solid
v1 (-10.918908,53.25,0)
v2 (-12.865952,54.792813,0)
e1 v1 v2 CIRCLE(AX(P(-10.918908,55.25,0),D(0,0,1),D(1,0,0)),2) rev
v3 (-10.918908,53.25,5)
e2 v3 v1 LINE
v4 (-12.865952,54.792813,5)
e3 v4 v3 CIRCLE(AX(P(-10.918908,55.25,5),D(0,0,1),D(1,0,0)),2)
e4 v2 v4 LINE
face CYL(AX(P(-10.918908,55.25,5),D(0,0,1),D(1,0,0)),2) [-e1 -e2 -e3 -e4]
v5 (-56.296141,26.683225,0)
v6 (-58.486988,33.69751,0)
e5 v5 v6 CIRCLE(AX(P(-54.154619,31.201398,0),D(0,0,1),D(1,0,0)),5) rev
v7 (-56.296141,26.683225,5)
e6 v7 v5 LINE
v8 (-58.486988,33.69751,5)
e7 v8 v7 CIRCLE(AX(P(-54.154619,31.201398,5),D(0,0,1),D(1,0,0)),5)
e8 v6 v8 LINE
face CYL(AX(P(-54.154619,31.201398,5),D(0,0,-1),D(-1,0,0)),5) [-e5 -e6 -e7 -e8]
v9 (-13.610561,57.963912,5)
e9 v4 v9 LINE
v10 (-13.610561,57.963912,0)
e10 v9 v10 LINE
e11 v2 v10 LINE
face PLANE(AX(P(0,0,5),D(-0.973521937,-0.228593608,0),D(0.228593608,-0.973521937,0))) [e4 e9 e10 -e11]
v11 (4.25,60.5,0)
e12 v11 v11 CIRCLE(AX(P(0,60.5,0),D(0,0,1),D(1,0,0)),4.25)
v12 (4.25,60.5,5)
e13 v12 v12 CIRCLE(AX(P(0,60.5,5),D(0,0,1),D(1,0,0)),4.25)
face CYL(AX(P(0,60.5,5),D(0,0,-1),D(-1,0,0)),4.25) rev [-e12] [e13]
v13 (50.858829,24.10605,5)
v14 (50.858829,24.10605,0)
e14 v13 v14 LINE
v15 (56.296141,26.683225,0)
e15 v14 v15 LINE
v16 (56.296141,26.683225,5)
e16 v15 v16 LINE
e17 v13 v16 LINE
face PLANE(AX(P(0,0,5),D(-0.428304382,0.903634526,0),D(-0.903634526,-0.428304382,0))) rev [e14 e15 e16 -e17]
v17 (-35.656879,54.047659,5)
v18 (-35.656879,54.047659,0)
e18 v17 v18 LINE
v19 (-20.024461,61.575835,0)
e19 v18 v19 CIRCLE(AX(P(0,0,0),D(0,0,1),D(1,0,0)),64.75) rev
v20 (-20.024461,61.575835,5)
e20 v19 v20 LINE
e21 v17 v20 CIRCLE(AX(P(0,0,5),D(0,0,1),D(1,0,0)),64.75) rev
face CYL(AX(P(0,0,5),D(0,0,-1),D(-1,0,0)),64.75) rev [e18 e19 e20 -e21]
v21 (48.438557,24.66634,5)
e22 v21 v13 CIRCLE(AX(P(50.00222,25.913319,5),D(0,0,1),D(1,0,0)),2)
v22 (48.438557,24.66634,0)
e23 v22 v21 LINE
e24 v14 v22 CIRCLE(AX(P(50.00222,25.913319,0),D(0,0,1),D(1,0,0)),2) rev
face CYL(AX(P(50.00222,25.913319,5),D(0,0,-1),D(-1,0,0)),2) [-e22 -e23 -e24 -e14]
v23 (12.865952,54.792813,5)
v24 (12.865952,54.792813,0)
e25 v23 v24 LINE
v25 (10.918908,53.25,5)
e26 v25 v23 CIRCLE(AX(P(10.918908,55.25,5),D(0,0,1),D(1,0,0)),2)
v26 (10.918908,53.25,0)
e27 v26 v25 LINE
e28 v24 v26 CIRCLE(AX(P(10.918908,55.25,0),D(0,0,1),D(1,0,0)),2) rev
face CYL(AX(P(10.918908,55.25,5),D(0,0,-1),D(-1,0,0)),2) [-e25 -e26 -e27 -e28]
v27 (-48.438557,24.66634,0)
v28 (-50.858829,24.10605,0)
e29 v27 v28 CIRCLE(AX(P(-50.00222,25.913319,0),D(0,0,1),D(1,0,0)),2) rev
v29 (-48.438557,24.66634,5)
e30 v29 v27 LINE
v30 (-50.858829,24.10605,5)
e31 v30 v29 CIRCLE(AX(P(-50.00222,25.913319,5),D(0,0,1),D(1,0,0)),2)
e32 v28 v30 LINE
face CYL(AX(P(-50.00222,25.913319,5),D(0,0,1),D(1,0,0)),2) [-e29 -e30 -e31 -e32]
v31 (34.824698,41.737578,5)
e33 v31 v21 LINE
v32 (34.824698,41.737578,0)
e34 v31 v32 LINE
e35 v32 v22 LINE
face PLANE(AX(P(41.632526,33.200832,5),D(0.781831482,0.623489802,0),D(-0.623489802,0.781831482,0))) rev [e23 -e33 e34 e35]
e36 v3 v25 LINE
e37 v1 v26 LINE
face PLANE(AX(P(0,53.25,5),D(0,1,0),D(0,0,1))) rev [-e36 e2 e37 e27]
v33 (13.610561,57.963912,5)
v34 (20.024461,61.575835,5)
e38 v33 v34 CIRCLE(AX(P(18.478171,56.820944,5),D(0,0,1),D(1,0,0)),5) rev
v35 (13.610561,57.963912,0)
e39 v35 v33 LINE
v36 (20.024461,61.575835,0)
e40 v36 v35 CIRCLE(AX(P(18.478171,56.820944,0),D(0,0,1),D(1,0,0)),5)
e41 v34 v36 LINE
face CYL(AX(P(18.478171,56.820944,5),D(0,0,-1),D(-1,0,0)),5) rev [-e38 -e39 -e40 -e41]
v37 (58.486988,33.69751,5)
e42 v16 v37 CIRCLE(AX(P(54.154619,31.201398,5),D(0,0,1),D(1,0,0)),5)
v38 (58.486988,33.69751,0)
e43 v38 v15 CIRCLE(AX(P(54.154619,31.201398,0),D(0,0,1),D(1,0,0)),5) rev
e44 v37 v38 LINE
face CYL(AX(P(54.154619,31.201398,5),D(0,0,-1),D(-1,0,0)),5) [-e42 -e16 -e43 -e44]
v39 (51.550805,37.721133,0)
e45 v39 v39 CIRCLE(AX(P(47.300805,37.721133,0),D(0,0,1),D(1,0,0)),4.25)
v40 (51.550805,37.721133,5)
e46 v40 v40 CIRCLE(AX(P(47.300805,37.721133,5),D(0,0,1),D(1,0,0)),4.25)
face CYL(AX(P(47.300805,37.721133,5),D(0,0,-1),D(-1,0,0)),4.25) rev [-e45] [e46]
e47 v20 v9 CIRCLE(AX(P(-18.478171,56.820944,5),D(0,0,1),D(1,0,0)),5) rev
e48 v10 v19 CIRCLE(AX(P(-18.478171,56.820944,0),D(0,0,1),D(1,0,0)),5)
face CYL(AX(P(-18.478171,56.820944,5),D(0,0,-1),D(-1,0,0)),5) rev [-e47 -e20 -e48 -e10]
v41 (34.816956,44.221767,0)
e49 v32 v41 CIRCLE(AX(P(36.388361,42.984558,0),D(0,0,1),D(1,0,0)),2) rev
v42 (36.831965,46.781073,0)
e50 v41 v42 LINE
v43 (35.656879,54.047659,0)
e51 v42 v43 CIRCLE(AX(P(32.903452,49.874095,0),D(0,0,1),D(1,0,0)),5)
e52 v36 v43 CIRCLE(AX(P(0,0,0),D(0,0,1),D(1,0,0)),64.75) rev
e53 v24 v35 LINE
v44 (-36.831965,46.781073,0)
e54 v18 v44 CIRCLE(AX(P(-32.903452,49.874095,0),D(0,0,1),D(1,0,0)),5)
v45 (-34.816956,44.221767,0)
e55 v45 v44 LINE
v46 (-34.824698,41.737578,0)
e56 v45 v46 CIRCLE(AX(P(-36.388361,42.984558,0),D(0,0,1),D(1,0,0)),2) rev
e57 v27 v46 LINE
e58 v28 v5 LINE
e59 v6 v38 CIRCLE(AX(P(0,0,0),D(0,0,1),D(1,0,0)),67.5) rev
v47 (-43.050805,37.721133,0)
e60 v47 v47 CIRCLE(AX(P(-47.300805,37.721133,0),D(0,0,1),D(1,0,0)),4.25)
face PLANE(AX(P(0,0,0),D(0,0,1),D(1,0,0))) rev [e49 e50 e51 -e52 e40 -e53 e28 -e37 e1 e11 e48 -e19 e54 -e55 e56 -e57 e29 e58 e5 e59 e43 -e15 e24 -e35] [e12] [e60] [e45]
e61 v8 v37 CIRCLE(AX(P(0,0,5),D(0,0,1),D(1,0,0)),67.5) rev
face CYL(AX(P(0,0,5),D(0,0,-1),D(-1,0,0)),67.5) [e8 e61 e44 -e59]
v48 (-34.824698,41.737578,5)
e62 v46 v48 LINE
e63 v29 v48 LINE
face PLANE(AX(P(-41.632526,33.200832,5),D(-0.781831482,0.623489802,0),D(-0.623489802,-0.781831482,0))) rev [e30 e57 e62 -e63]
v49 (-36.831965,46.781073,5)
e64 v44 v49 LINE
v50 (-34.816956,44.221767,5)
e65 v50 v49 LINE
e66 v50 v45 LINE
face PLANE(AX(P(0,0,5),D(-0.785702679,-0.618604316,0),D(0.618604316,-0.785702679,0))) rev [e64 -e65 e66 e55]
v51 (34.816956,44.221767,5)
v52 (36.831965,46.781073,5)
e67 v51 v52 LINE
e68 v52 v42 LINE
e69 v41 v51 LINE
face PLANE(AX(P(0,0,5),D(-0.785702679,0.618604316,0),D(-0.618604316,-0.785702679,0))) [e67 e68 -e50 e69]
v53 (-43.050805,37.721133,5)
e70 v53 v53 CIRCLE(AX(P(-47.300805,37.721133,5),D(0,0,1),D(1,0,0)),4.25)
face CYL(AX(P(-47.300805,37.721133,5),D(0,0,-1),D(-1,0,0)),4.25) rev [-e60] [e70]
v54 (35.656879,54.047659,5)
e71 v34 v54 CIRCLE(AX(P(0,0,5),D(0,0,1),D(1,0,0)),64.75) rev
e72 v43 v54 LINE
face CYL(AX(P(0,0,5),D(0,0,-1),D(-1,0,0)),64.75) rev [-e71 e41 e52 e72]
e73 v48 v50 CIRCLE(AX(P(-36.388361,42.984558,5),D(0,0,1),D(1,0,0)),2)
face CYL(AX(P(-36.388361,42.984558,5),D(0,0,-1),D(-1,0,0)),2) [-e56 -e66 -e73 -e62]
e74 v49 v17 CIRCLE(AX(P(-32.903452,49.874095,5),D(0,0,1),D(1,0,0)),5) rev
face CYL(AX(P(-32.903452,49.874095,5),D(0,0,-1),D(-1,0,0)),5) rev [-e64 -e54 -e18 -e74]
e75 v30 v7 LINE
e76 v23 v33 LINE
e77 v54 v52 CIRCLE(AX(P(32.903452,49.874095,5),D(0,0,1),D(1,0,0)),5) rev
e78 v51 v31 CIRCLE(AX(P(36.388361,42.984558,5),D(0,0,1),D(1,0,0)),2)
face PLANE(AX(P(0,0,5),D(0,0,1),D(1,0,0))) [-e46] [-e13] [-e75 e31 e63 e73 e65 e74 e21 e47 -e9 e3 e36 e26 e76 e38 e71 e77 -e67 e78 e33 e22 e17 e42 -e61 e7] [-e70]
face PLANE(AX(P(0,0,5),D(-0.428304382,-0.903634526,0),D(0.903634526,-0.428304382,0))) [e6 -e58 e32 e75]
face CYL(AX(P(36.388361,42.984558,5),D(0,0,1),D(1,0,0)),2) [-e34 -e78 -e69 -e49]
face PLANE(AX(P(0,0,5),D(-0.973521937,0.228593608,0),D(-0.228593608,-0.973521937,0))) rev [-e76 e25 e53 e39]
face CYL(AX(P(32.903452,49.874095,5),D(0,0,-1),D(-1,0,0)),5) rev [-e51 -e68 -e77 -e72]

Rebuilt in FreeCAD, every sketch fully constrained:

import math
import FreeCAD as App
import Part
import Sketcher
Q = App.Units.Quantity


def edges_at(feature, points):
    """Names of the edges that pass closest to the given points."""
    edges = feature.Shape.Edges
    near = lambda p: min(range(len(edges)), key=lambda i: edges[i].distToShape(Part.Vertex(*p))[0])
    return sorted({f"Edge{near(p) + 1}" for p in points})

doc = App.newDocument("Part")
body = doc.addObject("PartDesign::Body", "Body")

# Sketch on XY plane
sketch1 = body.newObject("Sketcher::SketchObject", "Sketch")
sketch1.AttachmentSupport = (doc.getObject("XY_Plane"), [""])
sketch1.MapMode = "FlatFace"
sketch1.addGeometry([
    Part.LineSegment(App.Vector(-41.6, 33.2, 0), App.Vector(-33.8, 43, 0)),  # 0
    Part.LineSegment(App.Vector(-33.8, 43, 0), App.Vector(-40.1, 50.9, 0)),  # 1
    Part.ArcOfCircle(Part.Circle(App.Vector(0, 0, 0), App.Vector(0, 0, 1), 64.8), math.radians(103), math.radians(128)),  # 2
    Part.LineSegment(App.Vector(-14.8, 63, 0), App.Vector(-12.5, 53.2, 0)),  # 3
    Part.LineSegment(App.Vector(-12.5, 53.2, 0), App.Vector(12.5, 53.2, 0)),  # 4
    Part.LineSegment(App.Vector(12.5, 53.2, 0), App.Vector(14.8, 63, 0)),  # 5
    Part.ArcOfCircle(Part.Circle(App.Vector(0, 0, 0), App.Vector(0, 0, 1), 64.8), math.radians(52), math.radians(77)),  # 6
    Part.LineSegment(App.Vector(40.1, 50.9, 0), App.Vector(33.8, 43, 0)),  # 7
    Part.LineSegment(App.Vector(33.8, 43, 0), App.Vector(41.6, 33.2, 0)),  # 8
    Part.LineSegment(App.Vector(41.6, 33.2, 0), App.Vector(49.4, 23.4, 0)),  # 9
    Part.LineSegment(App.Vector(49.4, 23.4, 0), App.Vector(61, 28.9, 0)),  # 10
    Part.ArcOfCircle(Part.Circle(App.Vector(0, 0, 0), App.Vector(0, 0, 1), 67.5), math.radians(25), math.radians(52)),  # 11
    Part.ArcOfCircle(Part.Circle(App.Vector(0, 0, 0), App.Vector(0, 0, 1), 67.5), math.radians(52), math.radians(77)),  # 12
    Part.ArcOfCircle(Part.Circle(App.Vector(0, 0, 0), App.Vector(0, 0, 1), 67.5), math.radians(77), math.radians(103)),  # 13
    Part.ArcOfCircle(Part.Circle(App.Vector(0, 0, 0), App.Vector(0, 0, 1), 67.5), math.radians(103), math.radians(128)),  # 14
    Part.ArcOfCircle(Part.Circle(App.Vector(0, 0, 0), App.Vector(0, 0, 1), 67.5), math.radians(128), math.radians(155)),  # 15
    Part.LineSegment(App.Vector(-61, 28.9, 0), App.Vector(-49.4, 23.4, 0)),  # 16
    Part.LineSegment(App.Vector(-49.4, 23.4, 0), App.Vector(-41.6, 33.2, 0)),  # 17
    Part.Circle(App.Vector(-47.3, 37.7, 0), App.Vector(0, 0, 1), 4.2),  # 18
    Part.Circle(App.Vector(47.3, 37.7, 0), App.Vector(0, 0, 1), 4.2),  # 19
    Part.Circle(App.Vector(0, 60.5, 0), App.Vector(0, 0, 1), 4.2),  # 20
], False)
sketch1.addConstraint([
    Sketcher.Constraint("Coincident", 0, 2, 1, 1),
    Sketcher.Constraint("Coincident", 1, 2, 2, 2),
    Sketcher.Constraint("Coincident", 2, 1, 3, 1),
    Sketcher.Constraint("Coincident", 3, 2, 4, 1),
    Sketcher.Constraint("Coincident", 4, 2, 5, 1),
    Sketcher.Constraint("Coincident", 5, 2, 6, 2),
    Sketcher.Constraint("Coincident", 6, 1, 7, 1),
    Sketcher.Constraint("Coincident", 7, 2, 8, 1),
    Sketcher.Constraint("Coincident", 8, 2, 9, 1),
    Sketcher.Constraint("Coincident", 9, 2, 10, 1),
    Sketcher.Constraint("Coincident", 10, 2, 11, 1),
    Sketcher.Constraint("Tangent", 11, 2, 12, 1),
    Sketcher.Constraint("Tangent", 12, 2, 13, 1),
    Sketcher.Constraint("Tangent", 13, 2, 14, 1),
    Sketcher.Constraint("Tangent", 14, 2, 15, 1),
    Sketcher.Constraint("Coincident", 15, 2, 16, 1),
    Sketcher.Constraint("Coincident", 16, 2, 17, 1),
    Sketcher.Constraint("Coincident", 17, 2, 0, 1),
    Sketcher.Constraint("Horizontal", 4),
    Sketcher.Constraint("Coincident", 2, 3, -1, 1),
    Sketcher.Constraint("Coincident", 6, 3, -1, 1),
    Sketcher.Constraint("Coincident", 11, 3, -1, 1),
    Sketcher.Constraint("Coincident", 13, 3, -1, 1),
    Sketcher.Constraint("Coincident", 15, 3, -1, 1),
    Sketcher.Constraint("Equal", 2, 6),
    Sketcher.Constraint("Equal", 18, 19),
    Sketcher.Constraint("Equal", 19, 20),
    Sketcher.Constraint("Symmetric", 18, 3, 19, 3, -2),
    Sketcher.Constraint("Symmetric", 0, 2, 7, 2, -2),
    Sketcher.Constraint("Symmetric", 9, 2, 16, 2, -2),
    Sketcher.Constraint("Symmetric", 8, 2, 17, 2, -2),
    Sketcher.Constraint("PointOnObject", 20, 3, -2),
    Sketcher.Constraint("Parallel", 8, 9),
    Sketcher.Constraint("Horizontal", 2, 1, 5, 2),
    Sketcher.Constraint("Horizontal", 1, 2, 6, 1),
    Sketcher.Constraint("Horizontal", 12, 2, 13, 2),
    Sketcher.Constraint("Horizontal", 11, 2, 14, 2),
    Sketcher.Constraint("Horizontal", 10, 2, 15, 2),
    Sketcher.Constraint("Equal", 1, 3),
    Sketcher.Constraint("Equal", 3, 5),
    Sketcher.Constraint("Diameter", 18, 8.5),
    Sketcher.Constraint("Radius", 11, 67.5),
    Sketcher.Constraint("Radius", 2, 64.75),
    Sketcher.Constraint("DistanceY", -1, 1, 20, 3, 60.5),
    Sketcher.Constraint("Angle", 10, Q("25.36 deg")),
    Sketcher.Constraint("DistanceY", -1, 1, 3, 2, 53.25),
    Sketcher.Constraint("DistanceY", 9, 2, 6, 1, 27.446999),
    Sketcher.Constraint("DistanceX", -1, 1, 9, 2, 49.426698),
    Sketcher.Constraint("DistanceY", 8, 2, 19, 3, 4.520301),
    Sketcher.Constraint("DistanceX", 6, 1, 10, 2, 20.940701),
    Sketcher.Constraint("DistanceY", 8, 2, 11, 2, 19.834099),
    Sketcher.Constraint("DistanceY", 11, 2, 12, 2, 12.6778),
    Sketcher.Constraint("Distance", 9, 12.500881),
    Sketcher.Constraint("DistanceX", 4, 1, 4, 2, 25.007366),
    Sketcher.Constraint("DistanceX", -1, 1, 12, 2, 15.430069),
    Sketcher.Constraint("DistanceX", 0, 2, 2, 1, 19.035172),
    Sketcher.Constraint("DistanceX", 18, 3, 2, 1, 32.499369),
])
pad1 = body.newObject("PartDesign::Pad", "Pad")
pad1.Profile = sketch1
pad1.Length = 5
doc.recompute()

fillet = body.newObject("PartDesign::Fillet", "Fillet")
fillet.Base = (pad1, edges_at(pad1, [
    (60.995, 28.911, 2.5),
    (40.055, 50.874, 2.5),
    (14.801, 63.036, 2.5),
    (-14.801, 63.036, 2.5),
    (-40.055, 50.874, 2.5),
    (-60.995, 28.911, 2.5),
]))
fillet.Radius = 5
doc.recompute()

fillet2 = body.newObject("PartDesign::Fillet", "Fillet001")
fillet2.Base = (fillet, edges_at(fillet, [
    (49.427, 23.427, 2.5),
    (33.837, 42.977, 2.5),
    (12.504, 53.25, 2.5),
    (-12.504, 53.25, 2.5),
    (-33.837, 42.977, 2.5),
    (-49.427, 23.427, 2.5),
]))
fillet2.Radius = 2

doc.recompute()
